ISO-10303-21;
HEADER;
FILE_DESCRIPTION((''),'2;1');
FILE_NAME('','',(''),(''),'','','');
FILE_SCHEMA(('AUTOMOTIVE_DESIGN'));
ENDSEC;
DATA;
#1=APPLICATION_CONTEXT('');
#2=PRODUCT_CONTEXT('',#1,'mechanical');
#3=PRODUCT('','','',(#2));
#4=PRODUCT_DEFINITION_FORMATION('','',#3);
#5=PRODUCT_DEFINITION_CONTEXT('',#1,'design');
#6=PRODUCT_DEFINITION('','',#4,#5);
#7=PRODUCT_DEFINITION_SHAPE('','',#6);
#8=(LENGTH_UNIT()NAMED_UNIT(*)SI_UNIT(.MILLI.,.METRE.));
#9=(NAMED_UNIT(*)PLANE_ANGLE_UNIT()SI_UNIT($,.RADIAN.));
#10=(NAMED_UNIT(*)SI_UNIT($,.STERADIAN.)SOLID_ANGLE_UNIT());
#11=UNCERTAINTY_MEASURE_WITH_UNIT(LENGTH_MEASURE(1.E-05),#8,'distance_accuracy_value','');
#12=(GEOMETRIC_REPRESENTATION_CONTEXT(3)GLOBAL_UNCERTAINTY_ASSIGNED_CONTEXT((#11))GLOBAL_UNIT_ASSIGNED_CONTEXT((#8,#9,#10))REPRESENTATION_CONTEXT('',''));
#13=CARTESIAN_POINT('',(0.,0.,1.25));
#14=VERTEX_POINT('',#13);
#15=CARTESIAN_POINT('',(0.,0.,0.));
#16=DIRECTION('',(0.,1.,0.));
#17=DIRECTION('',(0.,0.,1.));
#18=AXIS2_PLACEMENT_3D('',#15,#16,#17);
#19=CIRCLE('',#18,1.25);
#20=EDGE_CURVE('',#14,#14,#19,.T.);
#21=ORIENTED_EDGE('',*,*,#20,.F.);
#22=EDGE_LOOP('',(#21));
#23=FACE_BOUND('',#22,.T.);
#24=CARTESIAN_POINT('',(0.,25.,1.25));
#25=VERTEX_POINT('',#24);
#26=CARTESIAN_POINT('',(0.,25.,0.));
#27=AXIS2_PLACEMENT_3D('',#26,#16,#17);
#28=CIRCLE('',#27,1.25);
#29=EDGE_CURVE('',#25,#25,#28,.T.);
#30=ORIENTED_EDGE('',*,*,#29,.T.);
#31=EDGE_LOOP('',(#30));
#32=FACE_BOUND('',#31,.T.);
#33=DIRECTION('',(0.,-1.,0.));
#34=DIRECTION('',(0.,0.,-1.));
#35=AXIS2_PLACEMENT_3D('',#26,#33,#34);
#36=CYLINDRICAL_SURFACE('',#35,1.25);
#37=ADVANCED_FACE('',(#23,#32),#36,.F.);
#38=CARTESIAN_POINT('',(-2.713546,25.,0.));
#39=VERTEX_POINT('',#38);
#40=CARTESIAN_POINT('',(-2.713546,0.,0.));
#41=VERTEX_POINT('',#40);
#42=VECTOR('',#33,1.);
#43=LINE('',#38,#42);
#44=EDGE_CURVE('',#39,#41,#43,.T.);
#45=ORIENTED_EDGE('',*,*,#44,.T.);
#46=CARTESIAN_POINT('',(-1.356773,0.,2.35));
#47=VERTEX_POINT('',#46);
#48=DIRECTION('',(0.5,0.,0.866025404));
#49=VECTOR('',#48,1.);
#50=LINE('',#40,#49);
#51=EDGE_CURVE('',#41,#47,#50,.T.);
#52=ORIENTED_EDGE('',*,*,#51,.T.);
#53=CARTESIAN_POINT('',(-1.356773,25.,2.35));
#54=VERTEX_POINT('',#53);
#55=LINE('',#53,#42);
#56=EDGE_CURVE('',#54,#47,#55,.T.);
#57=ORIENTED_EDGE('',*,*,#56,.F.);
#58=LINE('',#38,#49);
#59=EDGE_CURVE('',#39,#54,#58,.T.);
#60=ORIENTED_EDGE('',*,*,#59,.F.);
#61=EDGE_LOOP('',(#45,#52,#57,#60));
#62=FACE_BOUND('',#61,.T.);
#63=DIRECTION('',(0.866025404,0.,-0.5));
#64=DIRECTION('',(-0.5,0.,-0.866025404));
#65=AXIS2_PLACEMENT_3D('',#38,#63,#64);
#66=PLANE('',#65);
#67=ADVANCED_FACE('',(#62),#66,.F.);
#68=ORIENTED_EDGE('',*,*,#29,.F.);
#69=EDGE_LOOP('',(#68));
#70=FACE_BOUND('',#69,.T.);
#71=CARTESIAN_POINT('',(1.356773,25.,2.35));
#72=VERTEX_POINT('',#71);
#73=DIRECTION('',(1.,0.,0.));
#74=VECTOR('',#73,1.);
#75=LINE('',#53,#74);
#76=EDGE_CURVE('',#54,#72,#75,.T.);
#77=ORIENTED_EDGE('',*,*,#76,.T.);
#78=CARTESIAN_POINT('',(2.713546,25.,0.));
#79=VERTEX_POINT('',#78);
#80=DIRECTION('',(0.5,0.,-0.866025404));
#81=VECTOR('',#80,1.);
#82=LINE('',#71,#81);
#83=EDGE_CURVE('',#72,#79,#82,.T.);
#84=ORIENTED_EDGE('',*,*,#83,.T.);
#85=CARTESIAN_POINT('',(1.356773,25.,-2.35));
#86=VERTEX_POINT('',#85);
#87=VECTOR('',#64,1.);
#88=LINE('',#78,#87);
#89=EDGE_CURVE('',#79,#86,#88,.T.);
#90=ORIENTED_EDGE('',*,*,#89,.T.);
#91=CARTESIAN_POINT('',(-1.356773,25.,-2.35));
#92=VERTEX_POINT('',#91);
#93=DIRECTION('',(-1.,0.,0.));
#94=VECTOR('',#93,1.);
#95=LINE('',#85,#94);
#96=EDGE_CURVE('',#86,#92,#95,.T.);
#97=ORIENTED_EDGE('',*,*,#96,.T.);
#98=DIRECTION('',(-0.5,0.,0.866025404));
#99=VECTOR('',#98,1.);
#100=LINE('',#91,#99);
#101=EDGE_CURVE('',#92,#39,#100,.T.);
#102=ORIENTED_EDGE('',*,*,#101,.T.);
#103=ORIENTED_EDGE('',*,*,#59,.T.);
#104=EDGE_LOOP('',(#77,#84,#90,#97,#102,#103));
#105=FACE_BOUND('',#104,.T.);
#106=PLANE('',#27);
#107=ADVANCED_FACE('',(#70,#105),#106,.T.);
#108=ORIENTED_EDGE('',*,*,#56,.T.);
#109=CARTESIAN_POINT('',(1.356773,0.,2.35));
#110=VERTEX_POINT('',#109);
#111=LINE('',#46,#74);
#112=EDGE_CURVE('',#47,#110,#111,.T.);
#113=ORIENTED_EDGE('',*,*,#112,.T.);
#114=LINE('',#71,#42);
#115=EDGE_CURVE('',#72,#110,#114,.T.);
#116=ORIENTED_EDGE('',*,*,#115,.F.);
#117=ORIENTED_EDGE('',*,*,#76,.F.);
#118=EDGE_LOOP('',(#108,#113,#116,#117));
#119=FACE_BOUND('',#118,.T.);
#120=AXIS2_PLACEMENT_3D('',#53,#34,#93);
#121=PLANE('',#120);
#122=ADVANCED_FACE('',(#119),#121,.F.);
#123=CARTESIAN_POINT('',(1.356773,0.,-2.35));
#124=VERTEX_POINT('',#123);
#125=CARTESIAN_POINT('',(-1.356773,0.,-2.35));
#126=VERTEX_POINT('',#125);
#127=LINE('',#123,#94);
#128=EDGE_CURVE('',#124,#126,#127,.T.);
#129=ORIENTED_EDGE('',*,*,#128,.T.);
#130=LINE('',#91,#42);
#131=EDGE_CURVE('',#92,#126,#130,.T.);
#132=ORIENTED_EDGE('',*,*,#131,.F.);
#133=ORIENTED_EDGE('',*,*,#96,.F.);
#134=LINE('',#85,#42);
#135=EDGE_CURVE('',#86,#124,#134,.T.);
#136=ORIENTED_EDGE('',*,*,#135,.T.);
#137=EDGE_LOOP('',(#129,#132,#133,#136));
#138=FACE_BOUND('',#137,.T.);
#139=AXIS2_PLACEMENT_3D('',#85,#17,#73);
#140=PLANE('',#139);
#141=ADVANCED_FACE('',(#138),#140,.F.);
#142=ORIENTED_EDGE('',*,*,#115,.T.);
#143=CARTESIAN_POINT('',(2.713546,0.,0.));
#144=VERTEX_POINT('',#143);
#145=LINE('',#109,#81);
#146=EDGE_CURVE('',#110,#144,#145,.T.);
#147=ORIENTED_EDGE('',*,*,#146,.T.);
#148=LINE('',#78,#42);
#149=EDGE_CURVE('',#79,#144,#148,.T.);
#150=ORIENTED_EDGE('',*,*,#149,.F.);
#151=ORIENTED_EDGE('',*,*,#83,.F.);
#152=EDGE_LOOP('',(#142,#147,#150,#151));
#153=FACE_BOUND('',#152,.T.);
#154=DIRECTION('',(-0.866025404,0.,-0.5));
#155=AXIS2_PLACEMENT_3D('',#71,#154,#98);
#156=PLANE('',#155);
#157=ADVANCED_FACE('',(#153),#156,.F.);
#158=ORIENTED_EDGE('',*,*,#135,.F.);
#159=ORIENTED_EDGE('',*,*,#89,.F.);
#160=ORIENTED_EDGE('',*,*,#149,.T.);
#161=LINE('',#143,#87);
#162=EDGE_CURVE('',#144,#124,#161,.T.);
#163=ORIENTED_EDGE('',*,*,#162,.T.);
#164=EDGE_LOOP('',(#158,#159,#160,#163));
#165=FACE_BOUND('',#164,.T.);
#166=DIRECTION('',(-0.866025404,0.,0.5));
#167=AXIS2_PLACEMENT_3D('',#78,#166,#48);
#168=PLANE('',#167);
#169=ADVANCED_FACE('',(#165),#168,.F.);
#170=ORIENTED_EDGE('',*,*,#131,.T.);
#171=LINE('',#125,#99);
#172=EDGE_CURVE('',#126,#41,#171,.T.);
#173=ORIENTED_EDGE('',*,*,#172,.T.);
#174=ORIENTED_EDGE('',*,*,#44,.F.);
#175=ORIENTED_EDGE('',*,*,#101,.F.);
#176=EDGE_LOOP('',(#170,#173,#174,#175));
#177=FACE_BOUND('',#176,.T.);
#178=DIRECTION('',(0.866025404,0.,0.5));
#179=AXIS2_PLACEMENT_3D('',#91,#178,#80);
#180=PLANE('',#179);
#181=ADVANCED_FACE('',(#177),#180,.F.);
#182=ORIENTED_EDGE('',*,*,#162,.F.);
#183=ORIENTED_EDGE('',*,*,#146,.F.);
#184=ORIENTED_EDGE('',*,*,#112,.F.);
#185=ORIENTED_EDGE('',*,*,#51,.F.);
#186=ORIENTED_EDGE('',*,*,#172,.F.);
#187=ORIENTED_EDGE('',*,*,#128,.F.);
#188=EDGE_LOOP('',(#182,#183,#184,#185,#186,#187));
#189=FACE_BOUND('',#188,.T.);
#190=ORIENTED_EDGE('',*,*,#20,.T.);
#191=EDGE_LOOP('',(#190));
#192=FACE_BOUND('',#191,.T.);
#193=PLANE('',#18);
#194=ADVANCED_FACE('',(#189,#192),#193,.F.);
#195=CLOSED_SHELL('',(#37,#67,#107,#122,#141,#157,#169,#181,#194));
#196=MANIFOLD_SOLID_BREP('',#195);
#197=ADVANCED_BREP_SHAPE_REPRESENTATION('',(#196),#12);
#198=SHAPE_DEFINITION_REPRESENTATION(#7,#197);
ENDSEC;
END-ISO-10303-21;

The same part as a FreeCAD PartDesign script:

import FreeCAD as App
import Part
import Sketcher

V = App.Vector
Q = App.Units.Quantity

doc = App.newDocument("Part")
body = doc.addObject("PartDesign::Body", "Body")

sketch1 = doc.addObject("Sketcher::SketchObject", "Sketch")
body.addObject(sketch1)
sketch1.AttachmentSupport = (doc.XZ_Plane, [""])
sketch1.MapMode = "FlatFace"
sketch1.addGeometry(Part.LineSegment(V(1.4, -2.4, 0), V(-1.4, -2.4, 0)), False)
sketch1.addGeometry(Part.LineSegment(V(-1.4, -2.4, 0), V(-2.7, 0, 0)), False)
sketch1.addGeometry(Part.LineSegment(V(-2.7, 0, 0), V(-1.4, 2.4, 0)), False)
sketch1.addGeometry(Part.LineSegment(V(-1.4, 2.4, 0), V(1.4, 2.4, 0)), False)
sketch1.addGeometry(Part.LineSegment(V(1.4, 2.4, 0), V(2.7, 0, 0)), False)
sketch1.addGeometry(Part.LineSegment(V(2.7, 0, 0), V(1.4, -2.4, 0)), False)
sketch1.addGeometry(Part.Circle(V(0, 0, 0), V(0, 0, 1), 1.2), False)
sketch1.addConstraint(Sketcher.Constraint("Coincident", 0, 2, 1, 1))
sketch1.addConstraint(Sketcher.Constraint("Coincident", 1, 2, 2, 1))
sketch1.addConstraint(Sketcher.Constraint("Coincident", 2, 2, 3, 1))
sketch1.addConstraint(Sketcher.Constraint("Coincident", 3, 2, 4, 1))
sketch1.addConstraint(Sketcher.Constraint("Coincident", 4, 2, 5, 1))
sketch1.addConstraint(Sketcher.Constraint("Coincident", 5, 2, 0, 1))
sketch1.addConstraint(Sketcher.Constraint("Horizontal", 0))
sketch1.addConstraint(Sketcher.Constraint("Horizontal", 3))
sketch1.addConstraint(Sketcher.Constraint("Coincident", 6, 3, -1, 1))
sketch1.addConstraint(Sketcher.Constraint("Symmetric", 0, 2, 3, 2, -1, 1))
sketch1.addConstraint(Sketcher.Constraint("Symmetric", 1, 2, 4, 2, -1, 1))
sketch1.addConstraint(Sketcher.Constraint("PointOnObject", 1, 2, -1))
sketch1.addConstraint(Sketcher.Constraint("Parallel", 2, 5))
sketch1.addConstraint(Sketcher.Constraint("Vertical", 0, 2, 2, 2))
sketch1.addConstraint(Sketcher.Constraint("Diameter", 6, Q("2.5 mm")))
sketch1.addConstraint(Sketcher.Constraint("Angle", 1, Q("120 deg")))
sketch1.addConstraint(Sketcher.Constraint("DistanceY", 0, 2, 2, 2, Q("4.7 mm")))
sketch1.addConstraint(Sketcher.Constraint("DistanceX", 0, 2, 0, 1, Q("2.713546 mm")))
pad1 = doc.addObject("PartDesign::Pad", "Pad")
body.addObject(pad1)
pad1.Profile = sketch1
pad1.Length = 25
pad1.Reversed = True

doc.recompute()
